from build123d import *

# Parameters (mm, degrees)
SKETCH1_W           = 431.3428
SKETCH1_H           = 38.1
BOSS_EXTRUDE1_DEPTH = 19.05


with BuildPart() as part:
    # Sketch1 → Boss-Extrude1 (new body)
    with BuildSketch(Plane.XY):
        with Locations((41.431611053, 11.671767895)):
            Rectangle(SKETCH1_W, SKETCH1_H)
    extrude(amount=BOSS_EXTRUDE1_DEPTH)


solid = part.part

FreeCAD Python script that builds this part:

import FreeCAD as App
import Part
import Sketcher
from FreeCAD import Vector
Q = App.Units.Quantity

doc = App.newDocument("Part")
body = doc.addObject("PartDesign::Body", "Body")

sketch1 = body.newObject("Sketcher::SketchObject", "Sketch")
sketch1.AttachmentSupport = (doc.getObject("XY_Plane"), [""])
sketch1.MapMode = "FlatFace"
sketch1.addGeometry([
    Part.LineSegment(Vector(-174, 31, 0), Vector(-174, -7, 0)),
    Part.LineSegment(Vector(-174, -7, 0), Vector(257, -7, 0)),
    Part.LineSegment(Vector(257, -7, 0), Vector(257, 31, 0)),
    Part.LineSegment(Vector(257, 31, 0), Vector(-174, 31, 0)),
], False)
sketch1.addConstraint([
    Sketcher.Constraint("Coincident", 0, 2, 1, 1),
    Sketcher.Constraint("Coincident", 1, 2, 2, 1),
    Sketcher.Constraint("Coincident", 2, 2, 3, 1),
    Sketcher.Constraint("Coincident", 3, 2, 0, 1),
    Sketcher.Constraint("Vertical", 0),
    Sketcher.Constraint("Horizontal", 1),
    Sketcher.Constraint("Vertical", 2),
    Sketcher.Constraint("Horizontal", 3),
    Sketcher.Constraint("DistanceY", 0, 2, 0, 1, Q("1.5 in")),
    Sketcher.Constraint("DistanceX", 1, 1, 1, 2, Q("16.982 in")),
    Sketcher.Constraint("DistanceX", 0, 2, -1, 1, Q("174.239789 mm")),
    Sketcher.Constraint("DistanceY", 0, 2, -1, 1, Q("7.378232 mm")),
])
pad1 = body.newObject("PartDesign::Pad", "Pad")
pad1.Profile = sketch1
pad1.Length = Q("0.75 in")

doc.recompute()
